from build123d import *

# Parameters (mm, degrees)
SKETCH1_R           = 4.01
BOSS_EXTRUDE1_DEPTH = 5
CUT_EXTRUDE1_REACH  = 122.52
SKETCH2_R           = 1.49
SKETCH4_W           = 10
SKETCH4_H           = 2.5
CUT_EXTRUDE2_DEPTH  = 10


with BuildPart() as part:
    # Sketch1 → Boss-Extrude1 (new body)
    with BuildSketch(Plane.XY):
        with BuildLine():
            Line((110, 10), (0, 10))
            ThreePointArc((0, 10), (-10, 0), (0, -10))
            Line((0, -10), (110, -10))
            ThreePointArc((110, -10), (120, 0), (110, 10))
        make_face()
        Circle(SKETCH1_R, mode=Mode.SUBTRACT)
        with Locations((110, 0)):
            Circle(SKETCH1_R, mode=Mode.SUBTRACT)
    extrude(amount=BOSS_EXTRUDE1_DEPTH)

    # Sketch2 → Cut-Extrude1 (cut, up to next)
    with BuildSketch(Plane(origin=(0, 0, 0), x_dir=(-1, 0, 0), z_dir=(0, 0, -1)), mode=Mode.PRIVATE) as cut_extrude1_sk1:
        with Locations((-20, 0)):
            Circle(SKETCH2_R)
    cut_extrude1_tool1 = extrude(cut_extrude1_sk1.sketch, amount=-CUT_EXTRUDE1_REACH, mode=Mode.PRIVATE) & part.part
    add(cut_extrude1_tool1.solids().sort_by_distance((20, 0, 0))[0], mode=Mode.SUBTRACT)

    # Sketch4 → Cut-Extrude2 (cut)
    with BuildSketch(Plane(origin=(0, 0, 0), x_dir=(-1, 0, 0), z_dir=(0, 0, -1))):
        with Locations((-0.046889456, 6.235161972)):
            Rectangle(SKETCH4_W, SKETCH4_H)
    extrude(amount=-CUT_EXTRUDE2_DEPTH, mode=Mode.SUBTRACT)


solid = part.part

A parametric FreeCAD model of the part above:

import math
import FreeCAD as App
import Part
import Sketcher


def add_polygon(sketch, points):
    """Adds a closed chain of lines whose ends are joined by coincident constraints."""
    first, n = sketch.GeometryCount, len(points)
    for a, b in zip(points, points[1:] + points[:1]):
        sketch.addGeometry(Part.LineSegment(App.Vector(*a, 0), App.Vector(*b, 0)), False)
    for i in range(n):
        sketch.addConstraint(Sketcher.Constraint("Coincident", first + i, 2, first + (i + 1) % n, 1))

doc = App.newDocument("Part")
body = doc.addObject("PartDesign::Body", "Body")

# Sketch on XY plane
sketch1 = doc.addObject("Sketcher::SketchObject", "Sketch")
body.addObject(sketch1)
sketch1.AttachmentSupport = (doc.XY_Plane, [""])
sketch1.MapMode = "FlatFace"
sketch1.addGeometry(Part.LineSegment(App.Vector(110, 10, 0), App.Vector(0, 10, 0)), False)
sketch1.addGeometry(Part.ArcOfCircle(Part.Circle(App.Vector(0, 0, 0), App.Vector(0, 0, 1), 10), math.radians(90), math.radians(270)), False)
sketch1.addGeometry(Part.LineSegment(App.Vector(0, -10, 0), App.Vector(110, -10, 0)), False)
sketch1.addGeometry(Part.ArcOfCircle(Part.Circle(App.Vector(110, 0, 0), App.Vector(0, 0, 1), 10), math.radians(-90), math.radians(90)), False)
sketch1.addGeometry(Part.Circle(App.Vector(0, 0, 0), App.Vector(0, 0, 1), 4.01), False)
sketch1.addGeometry(Part.Circle(App.Vector(110, 0, 0), App.Vector(0, 0, 1), 4.01), False)
sketch1.addConstraint(Sketcher.Constraint("Tangent", 0, 2, 1, 1))
sketch1.addConstraint(Sketcher.Constraint("Tangent", 1, 2, 2, 1))
sketch1.addConstraint(Sketcher.Constraint("Tangent", 2, 2, 3, 1))
sketch1.addConstraint(Sketcher.Constraint("Tangent", 3, 2, 0, 1))
sketch1.addConstraint(Sketcher.Constraint("Horizontal", 0))
sketch1.addConstraint(Sketcher.Constraint("Horizontal", 2))
sketch1.addConstraint(Sketcher.Constraint("Coincident", 1, 3, -1, 1))
sketch1.addConstraint(Sketcher.Constraint("Coincident", 4, 3, -1, 1))
sketch1.addConstraint(Sketcher.Constraint("Coincident", 5, 3, 3, 3))
sketch1.addConstraint(Sketcher.Constraint("Equal", 4, 5))
sketch1.addConstraint(Sketcher.Constraint("Radius", 1, 10.0))
sketch1.addConstraint(Sketcher.Constraint("Diameter", 4, 8.02))
sketch1.addConstraint(Sketcher.Constraint("DistanceX", 0, 2, 0, 1, 110.0))
pad1 = doc.addObject("PartDesign::Pad", "Pad")
body.addObject(pad1)
pad1.Profile = sketch1
pad1.Length = 5

# Sketch on XY plane
sketch2 = doc.addObject("Sketcher::SketchObject", "Sketch001")
body.addObject(sketch2)
sketch2.AttachmentSupport = (doc.XY_Plane, [""])
sketch2.MapMode = "FlatFace"
sketch2.addGeometry(Part.Circle(App.Vector(20, 0, 0), App.Vector(0, 0, 1), 1.49), False)
sketch2.addConstraint(Sketcher.Constraint("PointOnObject", 0, 3, -1))
sketch2.addConstraint(Sketcher.Constraint("Diameter", 0, 2.98))
sketch2.addConstraint(Sketcher.Constraint("DistanceX", -1, 1, 0, 3, 20.0))
pocket1 = doc.addObject("PartDesign::Pocket", "Pocket")
body.addObject(pocket1)
pocket1.Profile = sketch2
pocket1.Type = "UpToFirst"
pocket1.Reversed = True

# Sketch on XY plane
sketch3 = doc.addObject("Sketcher::SketchObject", "Sketch002")
body.addObject(sketch3)
sketch3.AttachmentSupport = (doc.XY_Plane, [""])
sketch3.MapMode = "FlatFace"
add_polygon(sketch3, [(5.046889, 7.485162), (5.046889, 4.985162), (-4.953111, 4.985162), (-4.953111, 7.485162)])  # lines 0-3
sketch3.addConstraint(Sketcher.Constraint("Vertical", 0))
sketch3.addConstraint(Sketcher.Constraint("Horizontal", 1))
sketch3.addConstraint(Sketcher.Constraint("Vertical", 2))
sketch3.addConstraint(Sketcher.Constraint("Horizontal", 3))
sketch3.addConstraint(Sketcher.Constraint("DistanceX", 1, 2, 1, 1, 10.0))
sketch3.addConstraint(Sketcher.Constraint("DistanceY", 0, 2, 0, 1, 2.5))
sketch3.addConstraint(Sketcher.Constraint("DistanceX", -1, 1, 0, 2, 5.046889))
sketch3.addConstraint(Sketcher.Constraint("DistanceY", -1, 1, 0, 2, 4.985162))
pocket2 = doc.addObject("PartDesign::Pocket", "Pocket001")
body.addObject(pocket2)
pocket2.Profile = sketch3
pocket2.Length = 10
pocket2.Reversed = True

doc.recompute()
